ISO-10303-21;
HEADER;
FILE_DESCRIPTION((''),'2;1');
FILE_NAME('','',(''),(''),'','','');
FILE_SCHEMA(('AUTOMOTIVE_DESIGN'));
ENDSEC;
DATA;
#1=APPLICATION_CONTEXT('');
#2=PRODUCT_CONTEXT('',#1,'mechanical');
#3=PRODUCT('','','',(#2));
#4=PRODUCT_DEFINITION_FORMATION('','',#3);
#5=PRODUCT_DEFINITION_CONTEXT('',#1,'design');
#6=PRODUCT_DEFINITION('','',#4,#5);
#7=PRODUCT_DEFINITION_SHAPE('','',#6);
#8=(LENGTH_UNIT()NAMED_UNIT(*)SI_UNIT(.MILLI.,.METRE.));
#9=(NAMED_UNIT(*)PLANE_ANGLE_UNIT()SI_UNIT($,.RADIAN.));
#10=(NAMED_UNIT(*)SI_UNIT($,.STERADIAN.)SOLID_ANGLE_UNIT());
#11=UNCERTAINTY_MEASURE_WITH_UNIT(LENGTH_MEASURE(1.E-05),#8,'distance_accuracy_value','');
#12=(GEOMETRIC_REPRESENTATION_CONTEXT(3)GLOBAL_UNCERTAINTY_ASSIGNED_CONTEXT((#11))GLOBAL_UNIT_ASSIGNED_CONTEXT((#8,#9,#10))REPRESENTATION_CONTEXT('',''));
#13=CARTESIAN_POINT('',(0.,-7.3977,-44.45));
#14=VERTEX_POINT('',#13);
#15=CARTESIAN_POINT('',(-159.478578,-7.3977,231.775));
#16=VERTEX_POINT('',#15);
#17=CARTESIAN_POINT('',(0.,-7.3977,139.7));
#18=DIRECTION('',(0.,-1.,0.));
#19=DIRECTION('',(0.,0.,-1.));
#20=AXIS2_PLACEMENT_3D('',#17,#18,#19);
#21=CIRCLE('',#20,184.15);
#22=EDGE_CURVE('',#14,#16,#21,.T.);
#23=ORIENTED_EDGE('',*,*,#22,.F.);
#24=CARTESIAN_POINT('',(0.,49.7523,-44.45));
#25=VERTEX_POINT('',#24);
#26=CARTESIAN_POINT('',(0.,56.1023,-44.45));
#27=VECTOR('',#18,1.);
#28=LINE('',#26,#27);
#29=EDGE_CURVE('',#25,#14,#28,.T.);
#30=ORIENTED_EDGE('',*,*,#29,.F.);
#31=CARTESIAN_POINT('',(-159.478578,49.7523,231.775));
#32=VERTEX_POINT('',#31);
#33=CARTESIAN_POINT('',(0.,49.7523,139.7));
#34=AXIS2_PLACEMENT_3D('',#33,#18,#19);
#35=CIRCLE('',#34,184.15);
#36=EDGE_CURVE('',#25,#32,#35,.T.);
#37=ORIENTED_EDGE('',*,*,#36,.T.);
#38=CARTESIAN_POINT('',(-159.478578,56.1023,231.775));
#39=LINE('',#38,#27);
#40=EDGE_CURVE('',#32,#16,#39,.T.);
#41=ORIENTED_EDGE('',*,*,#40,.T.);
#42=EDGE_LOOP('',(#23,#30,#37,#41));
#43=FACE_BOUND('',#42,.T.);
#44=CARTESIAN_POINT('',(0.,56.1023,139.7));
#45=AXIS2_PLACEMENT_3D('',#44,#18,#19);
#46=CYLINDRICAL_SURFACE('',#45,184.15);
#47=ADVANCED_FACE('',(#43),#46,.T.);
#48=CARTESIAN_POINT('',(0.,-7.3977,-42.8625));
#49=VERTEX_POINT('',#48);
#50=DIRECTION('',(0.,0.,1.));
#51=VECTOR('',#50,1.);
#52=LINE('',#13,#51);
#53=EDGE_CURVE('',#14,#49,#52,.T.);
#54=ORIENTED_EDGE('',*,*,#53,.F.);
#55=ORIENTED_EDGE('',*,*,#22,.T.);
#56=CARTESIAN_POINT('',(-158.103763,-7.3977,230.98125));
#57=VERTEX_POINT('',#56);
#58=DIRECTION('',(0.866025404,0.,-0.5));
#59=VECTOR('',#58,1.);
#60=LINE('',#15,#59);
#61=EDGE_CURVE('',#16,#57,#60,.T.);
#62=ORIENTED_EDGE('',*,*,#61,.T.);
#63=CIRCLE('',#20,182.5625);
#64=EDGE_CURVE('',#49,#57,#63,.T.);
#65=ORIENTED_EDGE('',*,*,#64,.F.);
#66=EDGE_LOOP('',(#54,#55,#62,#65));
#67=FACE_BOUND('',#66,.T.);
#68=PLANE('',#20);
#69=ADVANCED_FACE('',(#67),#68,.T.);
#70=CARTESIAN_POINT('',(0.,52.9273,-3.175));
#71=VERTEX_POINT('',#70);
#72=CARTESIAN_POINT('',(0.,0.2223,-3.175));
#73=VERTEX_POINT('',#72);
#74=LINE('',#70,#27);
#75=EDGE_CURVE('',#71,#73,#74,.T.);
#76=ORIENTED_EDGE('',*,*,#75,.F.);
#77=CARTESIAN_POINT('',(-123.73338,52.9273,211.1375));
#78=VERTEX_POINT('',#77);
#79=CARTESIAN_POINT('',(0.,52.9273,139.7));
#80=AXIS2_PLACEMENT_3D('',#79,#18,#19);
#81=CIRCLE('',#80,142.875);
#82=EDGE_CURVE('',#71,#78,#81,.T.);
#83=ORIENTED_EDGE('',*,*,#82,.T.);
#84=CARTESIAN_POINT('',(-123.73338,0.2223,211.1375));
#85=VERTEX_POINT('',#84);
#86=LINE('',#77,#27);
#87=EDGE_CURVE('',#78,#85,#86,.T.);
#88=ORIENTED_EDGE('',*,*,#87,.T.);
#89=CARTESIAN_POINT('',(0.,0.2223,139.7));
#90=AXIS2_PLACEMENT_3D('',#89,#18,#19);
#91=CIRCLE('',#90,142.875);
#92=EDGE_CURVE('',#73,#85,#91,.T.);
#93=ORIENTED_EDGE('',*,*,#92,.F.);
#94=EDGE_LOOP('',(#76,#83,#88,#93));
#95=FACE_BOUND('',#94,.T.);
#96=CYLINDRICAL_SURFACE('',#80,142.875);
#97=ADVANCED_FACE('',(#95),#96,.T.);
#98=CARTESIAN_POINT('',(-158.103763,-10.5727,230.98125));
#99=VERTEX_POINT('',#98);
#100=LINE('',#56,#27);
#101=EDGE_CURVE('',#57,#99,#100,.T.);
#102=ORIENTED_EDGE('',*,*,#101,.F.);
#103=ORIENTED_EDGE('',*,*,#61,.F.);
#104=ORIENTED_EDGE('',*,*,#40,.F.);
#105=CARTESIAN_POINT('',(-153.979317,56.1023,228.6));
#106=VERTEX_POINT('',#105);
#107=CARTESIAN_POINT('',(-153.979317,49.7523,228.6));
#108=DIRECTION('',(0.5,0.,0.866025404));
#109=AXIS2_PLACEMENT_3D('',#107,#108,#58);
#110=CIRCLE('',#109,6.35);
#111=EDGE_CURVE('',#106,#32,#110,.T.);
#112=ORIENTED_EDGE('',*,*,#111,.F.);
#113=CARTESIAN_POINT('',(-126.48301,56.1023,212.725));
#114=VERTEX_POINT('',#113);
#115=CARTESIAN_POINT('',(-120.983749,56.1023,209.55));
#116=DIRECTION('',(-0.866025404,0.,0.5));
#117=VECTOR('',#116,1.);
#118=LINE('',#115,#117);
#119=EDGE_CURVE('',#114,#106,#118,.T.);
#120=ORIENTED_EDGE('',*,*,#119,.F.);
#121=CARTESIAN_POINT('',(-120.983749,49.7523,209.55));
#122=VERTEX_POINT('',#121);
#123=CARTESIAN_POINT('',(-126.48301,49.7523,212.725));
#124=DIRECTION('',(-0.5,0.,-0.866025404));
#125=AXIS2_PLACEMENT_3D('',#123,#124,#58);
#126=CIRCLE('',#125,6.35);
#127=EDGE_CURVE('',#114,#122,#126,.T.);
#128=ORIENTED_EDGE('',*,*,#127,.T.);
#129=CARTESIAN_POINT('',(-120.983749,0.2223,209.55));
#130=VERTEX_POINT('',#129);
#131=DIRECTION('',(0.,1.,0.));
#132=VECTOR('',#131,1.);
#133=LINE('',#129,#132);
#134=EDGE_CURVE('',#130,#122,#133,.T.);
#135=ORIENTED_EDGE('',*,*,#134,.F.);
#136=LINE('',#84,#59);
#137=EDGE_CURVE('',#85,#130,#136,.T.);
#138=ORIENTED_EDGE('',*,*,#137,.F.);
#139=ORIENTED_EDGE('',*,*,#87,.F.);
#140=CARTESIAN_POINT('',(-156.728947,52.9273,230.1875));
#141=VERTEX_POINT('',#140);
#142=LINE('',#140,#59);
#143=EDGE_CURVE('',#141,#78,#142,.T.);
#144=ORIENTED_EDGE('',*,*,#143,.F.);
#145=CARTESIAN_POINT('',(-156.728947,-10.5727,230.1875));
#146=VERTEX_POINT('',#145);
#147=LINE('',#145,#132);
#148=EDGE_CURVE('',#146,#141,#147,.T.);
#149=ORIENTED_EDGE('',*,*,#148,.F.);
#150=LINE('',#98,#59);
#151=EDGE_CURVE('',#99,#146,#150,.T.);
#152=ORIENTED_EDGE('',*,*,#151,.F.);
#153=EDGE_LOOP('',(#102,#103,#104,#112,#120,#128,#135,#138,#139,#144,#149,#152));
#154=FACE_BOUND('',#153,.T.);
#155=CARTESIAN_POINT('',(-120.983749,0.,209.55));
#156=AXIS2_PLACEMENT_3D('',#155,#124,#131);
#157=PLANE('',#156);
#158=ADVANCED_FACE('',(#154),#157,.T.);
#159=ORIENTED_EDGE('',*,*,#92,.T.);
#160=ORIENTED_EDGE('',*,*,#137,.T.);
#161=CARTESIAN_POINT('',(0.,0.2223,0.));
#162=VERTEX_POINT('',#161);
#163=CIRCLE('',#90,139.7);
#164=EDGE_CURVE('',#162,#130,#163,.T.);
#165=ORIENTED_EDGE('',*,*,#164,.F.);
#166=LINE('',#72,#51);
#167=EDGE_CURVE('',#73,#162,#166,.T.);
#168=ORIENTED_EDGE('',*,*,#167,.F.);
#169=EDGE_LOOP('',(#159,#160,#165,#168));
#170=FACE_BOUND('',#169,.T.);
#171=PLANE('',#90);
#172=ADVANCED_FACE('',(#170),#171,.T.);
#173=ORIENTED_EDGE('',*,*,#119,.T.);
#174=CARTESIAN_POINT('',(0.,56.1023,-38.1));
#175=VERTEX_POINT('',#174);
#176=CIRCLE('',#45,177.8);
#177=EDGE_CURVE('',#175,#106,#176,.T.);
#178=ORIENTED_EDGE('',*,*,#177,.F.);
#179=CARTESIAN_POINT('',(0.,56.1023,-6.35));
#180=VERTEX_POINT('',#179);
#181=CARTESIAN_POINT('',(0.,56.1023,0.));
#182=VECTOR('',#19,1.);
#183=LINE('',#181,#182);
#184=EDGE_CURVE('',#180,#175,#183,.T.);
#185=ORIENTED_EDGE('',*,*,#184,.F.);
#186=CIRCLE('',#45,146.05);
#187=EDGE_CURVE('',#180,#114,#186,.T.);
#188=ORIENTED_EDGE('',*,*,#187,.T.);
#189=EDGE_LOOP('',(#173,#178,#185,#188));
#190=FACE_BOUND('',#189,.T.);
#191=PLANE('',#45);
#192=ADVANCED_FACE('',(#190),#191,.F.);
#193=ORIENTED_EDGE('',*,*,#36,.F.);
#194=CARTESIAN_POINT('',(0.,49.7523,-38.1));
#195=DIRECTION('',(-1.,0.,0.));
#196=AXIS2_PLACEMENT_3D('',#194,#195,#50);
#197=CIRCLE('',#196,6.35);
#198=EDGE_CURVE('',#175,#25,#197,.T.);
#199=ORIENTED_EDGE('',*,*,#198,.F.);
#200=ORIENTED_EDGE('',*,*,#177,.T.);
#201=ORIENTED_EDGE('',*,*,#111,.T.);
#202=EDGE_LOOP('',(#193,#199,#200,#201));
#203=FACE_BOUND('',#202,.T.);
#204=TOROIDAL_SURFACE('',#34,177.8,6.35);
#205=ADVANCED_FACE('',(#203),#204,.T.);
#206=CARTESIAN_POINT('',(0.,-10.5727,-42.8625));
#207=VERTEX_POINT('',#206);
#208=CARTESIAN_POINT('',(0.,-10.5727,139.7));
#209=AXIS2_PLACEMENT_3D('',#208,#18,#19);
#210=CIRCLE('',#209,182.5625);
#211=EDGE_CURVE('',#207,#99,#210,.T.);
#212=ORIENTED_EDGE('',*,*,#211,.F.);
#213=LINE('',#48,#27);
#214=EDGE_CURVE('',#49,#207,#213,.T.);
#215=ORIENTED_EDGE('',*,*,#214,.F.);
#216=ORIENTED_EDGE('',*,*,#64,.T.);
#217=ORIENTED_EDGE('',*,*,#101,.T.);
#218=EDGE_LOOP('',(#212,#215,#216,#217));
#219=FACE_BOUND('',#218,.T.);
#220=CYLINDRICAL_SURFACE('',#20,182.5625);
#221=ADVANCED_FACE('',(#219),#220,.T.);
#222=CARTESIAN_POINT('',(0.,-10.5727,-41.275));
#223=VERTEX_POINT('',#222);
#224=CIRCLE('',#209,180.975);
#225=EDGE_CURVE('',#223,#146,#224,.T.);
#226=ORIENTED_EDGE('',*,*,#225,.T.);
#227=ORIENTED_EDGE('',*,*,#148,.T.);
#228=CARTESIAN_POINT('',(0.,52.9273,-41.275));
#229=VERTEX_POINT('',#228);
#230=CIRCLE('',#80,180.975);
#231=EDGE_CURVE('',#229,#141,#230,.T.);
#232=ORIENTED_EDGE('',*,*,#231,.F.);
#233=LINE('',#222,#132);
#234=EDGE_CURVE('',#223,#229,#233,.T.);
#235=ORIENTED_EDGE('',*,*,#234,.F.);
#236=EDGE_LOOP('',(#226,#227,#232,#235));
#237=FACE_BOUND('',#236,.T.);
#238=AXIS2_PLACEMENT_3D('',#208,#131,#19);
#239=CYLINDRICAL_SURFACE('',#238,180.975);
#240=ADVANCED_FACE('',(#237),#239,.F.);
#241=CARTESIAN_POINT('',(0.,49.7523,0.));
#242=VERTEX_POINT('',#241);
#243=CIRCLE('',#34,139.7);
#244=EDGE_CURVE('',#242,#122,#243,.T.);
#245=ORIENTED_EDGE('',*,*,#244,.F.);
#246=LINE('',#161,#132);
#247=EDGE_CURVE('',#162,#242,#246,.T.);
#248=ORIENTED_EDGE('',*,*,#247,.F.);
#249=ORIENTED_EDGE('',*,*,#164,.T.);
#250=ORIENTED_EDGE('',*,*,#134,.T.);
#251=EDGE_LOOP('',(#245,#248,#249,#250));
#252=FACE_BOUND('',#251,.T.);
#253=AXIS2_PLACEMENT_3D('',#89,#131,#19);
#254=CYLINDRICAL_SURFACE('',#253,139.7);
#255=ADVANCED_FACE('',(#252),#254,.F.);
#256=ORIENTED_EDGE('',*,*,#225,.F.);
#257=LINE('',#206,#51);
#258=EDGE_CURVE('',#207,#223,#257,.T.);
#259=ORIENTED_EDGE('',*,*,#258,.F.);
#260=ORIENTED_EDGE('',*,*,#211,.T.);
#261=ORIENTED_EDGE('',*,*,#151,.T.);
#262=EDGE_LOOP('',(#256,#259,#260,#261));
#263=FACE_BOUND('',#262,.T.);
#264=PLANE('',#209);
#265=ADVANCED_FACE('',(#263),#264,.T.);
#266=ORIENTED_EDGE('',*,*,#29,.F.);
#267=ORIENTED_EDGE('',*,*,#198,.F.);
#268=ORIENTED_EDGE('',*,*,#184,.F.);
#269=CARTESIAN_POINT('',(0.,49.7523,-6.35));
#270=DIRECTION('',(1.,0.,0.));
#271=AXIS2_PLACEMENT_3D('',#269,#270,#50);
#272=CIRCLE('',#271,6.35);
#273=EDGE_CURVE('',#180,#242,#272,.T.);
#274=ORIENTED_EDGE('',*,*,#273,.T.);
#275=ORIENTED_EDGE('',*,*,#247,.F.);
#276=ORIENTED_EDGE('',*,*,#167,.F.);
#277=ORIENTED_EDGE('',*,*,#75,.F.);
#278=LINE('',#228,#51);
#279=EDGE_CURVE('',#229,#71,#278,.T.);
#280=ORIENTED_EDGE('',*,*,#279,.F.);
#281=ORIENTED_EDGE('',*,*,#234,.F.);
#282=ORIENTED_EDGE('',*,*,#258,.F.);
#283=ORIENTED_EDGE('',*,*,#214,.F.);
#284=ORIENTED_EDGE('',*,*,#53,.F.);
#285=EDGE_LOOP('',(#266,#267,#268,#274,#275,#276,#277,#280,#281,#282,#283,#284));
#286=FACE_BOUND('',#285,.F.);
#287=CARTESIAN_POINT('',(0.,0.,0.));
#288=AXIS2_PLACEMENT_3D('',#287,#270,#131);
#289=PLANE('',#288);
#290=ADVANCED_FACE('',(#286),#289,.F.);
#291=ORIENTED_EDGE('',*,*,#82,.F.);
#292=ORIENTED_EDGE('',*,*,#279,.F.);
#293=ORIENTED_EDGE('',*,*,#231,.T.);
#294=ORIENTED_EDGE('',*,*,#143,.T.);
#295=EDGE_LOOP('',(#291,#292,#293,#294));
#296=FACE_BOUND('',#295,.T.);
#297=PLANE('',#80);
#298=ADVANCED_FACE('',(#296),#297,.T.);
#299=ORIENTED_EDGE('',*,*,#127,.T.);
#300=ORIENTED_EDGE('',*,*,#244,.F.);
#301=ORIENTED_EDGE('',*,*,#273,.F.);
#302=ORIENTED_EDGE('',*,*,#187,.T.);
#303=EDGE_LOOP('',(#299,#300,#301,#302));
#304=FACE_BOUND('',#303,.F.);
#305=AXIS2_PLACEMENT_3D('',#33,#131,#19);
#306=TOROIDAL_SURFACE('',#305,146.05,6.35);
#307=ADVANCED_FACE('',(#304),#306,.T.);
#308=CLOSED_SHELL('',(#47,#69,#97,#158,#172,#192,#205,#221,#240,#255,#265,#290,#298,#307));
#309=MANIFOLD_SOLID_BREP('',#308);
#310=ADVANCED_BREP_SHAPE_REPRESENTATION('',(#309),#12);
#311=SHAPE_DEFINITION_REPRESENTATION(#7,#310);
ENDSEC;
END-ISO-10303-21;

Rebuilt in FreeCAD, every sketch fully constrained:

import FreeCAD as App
import Part
import Sketcher

V = App.Vector
Q = App.Units.Quantity


def edges_at(feature, points):
    """Names of the edges that pass closest to the given points."""
    edges = feature.Shape.Edges
    near = lambda p: min(range(len(edges)), key=lambda i: edges[i].distToShape(Part.Vertex(*p))[0])
    return sorted({f"Edge{near(p) + 1}" for p in points})


def add_polygon(sketch, points):
    """Adds a closed chain of lines whose ends are joined by coincident constraints."""
    first, n = sketch.GeometryCount, len(points)
    for a, b in zip(points, points[1:] + points[:1]):
        sketch.addGeometry(Part.LineSegment(App.Vector(*a, 0), App.Vector(*b, 0)), False)
    for i in range(n):
        sketch.addConstraint(Sketcher.Constraint("Coincident", first + i, 2, first + (i + 1) % n, 1))

doc = App.newDocument("Part")
body = doc.addObject("PartDesign::Body", "Body")

# Sketch on YZ plane
sketch1 = doc.addObject("Sketcher::SketchObject", "Sketch")
body.addObject(sketch1)
sketch1.AttachmentSupport = (doc.YZ_Plane, [""])
sketch1.MapMode = "FlatFace"
add_polygon(sketch1, [(56.1, 0), (0.2, 0), (0.2, -3.2), (52.9, -3.2), (52.9, -41.3), (-10.6, -41.3), (-10.6, -42.9), (-7.4, -42.9), (-7.4, -44.5), (56.1, -44.5)])  # lines 0-9
sketch1.addGeometry(Part.LineSegment(V(56.1, 139.7, 0), V(-10.6, 139.7, 0)), True)  # axis
sketch1.addConstraint([
    Sketcher.Constraint("Horizontal", 0),
    Sketcher.Constraint("Vertical", 1),
    Sketcher.Constraint("Horizontal", 2),
    Sketcher.Constraint("Vertical", 3),
    Sketcher.Constraint("Horizontal", 4),
    Sketcher.Constraint("Vertical", 5),
    Sketcher.Constraint("Horizontal", 6),
    Sketcher.Constraint("Vertical", 7),
    Sketcher.Constraint("Horizontal", 8),
    Sketcher.Constraint("Vertical", 9),
    Sketcher.Constraint("Horizontal", 10),
    Sketcher.Constraint("PointOnObject", 0, 2, -1),
    Sketcher.Constraint("Vertical", 9, 2, 10, 1),
    Sketcher.Constraint("Vertical", 5, 2, 10, 2),
    Sketcher.Constraint("Equal", 4, 8),
    Sketcher.Constraint("Equal", 6, 1),
    Sketcher.Constraint("Equal", 5, 7),
    Sketcher.Constraint("DistanceX", 0, 2, 0, 1, Q("2.2 in")),
    Sketcher.Constraint("DistanceX", 4, 2, 4, 1, Q("2.5 in")),
    Sketcher.Constraint("DistanceY", 3, 2, 3, 1, Q("1.5 in")),
    Sketcher.Constraint("DistanceY", 9, 1, 9, 2, Q("1.75 in")),
    Sketcher.Constraint("DistanceY", -1, 1, 10, 1, Q("5.5 in")),
    Sketcher.Constraint("DistanceX", 6, 1, 6, 2, Q("0.125 in")),
    Sketcher.Constraint("DistanceX", -1, 1, 0, 2, Q("0.2223 mm")),
])
revolution = doc.addObject("PartDesign::Revolution", "Revolution")
body.addObject(revolution)
revolution.Profile = sketch1
revolution.ReferenceAxis = (sketch1, ["Axis0"])
revolution.Angle = 240
doc.recompute()

fillet = doc.addObject("PartDesign::Fillet", "Fillet")
body.addObject(fillet)
fillet.Base = (revolution, edges_at(revolution, [(159.479, 56.102, 231.775)]))
fillet.Radius = Q("0.25 in")
doc.recompute()

fillet2 = doc.addObject("PartDesign::Fillet", "Fillet001")
body.addObject(fillet2)
fillet2.Base = (fillet, edges_at(fillet, [(120.984, 56.102, 209.55)]))
fillet2.Radius = Q("0.25 in")

doc.recompute()
